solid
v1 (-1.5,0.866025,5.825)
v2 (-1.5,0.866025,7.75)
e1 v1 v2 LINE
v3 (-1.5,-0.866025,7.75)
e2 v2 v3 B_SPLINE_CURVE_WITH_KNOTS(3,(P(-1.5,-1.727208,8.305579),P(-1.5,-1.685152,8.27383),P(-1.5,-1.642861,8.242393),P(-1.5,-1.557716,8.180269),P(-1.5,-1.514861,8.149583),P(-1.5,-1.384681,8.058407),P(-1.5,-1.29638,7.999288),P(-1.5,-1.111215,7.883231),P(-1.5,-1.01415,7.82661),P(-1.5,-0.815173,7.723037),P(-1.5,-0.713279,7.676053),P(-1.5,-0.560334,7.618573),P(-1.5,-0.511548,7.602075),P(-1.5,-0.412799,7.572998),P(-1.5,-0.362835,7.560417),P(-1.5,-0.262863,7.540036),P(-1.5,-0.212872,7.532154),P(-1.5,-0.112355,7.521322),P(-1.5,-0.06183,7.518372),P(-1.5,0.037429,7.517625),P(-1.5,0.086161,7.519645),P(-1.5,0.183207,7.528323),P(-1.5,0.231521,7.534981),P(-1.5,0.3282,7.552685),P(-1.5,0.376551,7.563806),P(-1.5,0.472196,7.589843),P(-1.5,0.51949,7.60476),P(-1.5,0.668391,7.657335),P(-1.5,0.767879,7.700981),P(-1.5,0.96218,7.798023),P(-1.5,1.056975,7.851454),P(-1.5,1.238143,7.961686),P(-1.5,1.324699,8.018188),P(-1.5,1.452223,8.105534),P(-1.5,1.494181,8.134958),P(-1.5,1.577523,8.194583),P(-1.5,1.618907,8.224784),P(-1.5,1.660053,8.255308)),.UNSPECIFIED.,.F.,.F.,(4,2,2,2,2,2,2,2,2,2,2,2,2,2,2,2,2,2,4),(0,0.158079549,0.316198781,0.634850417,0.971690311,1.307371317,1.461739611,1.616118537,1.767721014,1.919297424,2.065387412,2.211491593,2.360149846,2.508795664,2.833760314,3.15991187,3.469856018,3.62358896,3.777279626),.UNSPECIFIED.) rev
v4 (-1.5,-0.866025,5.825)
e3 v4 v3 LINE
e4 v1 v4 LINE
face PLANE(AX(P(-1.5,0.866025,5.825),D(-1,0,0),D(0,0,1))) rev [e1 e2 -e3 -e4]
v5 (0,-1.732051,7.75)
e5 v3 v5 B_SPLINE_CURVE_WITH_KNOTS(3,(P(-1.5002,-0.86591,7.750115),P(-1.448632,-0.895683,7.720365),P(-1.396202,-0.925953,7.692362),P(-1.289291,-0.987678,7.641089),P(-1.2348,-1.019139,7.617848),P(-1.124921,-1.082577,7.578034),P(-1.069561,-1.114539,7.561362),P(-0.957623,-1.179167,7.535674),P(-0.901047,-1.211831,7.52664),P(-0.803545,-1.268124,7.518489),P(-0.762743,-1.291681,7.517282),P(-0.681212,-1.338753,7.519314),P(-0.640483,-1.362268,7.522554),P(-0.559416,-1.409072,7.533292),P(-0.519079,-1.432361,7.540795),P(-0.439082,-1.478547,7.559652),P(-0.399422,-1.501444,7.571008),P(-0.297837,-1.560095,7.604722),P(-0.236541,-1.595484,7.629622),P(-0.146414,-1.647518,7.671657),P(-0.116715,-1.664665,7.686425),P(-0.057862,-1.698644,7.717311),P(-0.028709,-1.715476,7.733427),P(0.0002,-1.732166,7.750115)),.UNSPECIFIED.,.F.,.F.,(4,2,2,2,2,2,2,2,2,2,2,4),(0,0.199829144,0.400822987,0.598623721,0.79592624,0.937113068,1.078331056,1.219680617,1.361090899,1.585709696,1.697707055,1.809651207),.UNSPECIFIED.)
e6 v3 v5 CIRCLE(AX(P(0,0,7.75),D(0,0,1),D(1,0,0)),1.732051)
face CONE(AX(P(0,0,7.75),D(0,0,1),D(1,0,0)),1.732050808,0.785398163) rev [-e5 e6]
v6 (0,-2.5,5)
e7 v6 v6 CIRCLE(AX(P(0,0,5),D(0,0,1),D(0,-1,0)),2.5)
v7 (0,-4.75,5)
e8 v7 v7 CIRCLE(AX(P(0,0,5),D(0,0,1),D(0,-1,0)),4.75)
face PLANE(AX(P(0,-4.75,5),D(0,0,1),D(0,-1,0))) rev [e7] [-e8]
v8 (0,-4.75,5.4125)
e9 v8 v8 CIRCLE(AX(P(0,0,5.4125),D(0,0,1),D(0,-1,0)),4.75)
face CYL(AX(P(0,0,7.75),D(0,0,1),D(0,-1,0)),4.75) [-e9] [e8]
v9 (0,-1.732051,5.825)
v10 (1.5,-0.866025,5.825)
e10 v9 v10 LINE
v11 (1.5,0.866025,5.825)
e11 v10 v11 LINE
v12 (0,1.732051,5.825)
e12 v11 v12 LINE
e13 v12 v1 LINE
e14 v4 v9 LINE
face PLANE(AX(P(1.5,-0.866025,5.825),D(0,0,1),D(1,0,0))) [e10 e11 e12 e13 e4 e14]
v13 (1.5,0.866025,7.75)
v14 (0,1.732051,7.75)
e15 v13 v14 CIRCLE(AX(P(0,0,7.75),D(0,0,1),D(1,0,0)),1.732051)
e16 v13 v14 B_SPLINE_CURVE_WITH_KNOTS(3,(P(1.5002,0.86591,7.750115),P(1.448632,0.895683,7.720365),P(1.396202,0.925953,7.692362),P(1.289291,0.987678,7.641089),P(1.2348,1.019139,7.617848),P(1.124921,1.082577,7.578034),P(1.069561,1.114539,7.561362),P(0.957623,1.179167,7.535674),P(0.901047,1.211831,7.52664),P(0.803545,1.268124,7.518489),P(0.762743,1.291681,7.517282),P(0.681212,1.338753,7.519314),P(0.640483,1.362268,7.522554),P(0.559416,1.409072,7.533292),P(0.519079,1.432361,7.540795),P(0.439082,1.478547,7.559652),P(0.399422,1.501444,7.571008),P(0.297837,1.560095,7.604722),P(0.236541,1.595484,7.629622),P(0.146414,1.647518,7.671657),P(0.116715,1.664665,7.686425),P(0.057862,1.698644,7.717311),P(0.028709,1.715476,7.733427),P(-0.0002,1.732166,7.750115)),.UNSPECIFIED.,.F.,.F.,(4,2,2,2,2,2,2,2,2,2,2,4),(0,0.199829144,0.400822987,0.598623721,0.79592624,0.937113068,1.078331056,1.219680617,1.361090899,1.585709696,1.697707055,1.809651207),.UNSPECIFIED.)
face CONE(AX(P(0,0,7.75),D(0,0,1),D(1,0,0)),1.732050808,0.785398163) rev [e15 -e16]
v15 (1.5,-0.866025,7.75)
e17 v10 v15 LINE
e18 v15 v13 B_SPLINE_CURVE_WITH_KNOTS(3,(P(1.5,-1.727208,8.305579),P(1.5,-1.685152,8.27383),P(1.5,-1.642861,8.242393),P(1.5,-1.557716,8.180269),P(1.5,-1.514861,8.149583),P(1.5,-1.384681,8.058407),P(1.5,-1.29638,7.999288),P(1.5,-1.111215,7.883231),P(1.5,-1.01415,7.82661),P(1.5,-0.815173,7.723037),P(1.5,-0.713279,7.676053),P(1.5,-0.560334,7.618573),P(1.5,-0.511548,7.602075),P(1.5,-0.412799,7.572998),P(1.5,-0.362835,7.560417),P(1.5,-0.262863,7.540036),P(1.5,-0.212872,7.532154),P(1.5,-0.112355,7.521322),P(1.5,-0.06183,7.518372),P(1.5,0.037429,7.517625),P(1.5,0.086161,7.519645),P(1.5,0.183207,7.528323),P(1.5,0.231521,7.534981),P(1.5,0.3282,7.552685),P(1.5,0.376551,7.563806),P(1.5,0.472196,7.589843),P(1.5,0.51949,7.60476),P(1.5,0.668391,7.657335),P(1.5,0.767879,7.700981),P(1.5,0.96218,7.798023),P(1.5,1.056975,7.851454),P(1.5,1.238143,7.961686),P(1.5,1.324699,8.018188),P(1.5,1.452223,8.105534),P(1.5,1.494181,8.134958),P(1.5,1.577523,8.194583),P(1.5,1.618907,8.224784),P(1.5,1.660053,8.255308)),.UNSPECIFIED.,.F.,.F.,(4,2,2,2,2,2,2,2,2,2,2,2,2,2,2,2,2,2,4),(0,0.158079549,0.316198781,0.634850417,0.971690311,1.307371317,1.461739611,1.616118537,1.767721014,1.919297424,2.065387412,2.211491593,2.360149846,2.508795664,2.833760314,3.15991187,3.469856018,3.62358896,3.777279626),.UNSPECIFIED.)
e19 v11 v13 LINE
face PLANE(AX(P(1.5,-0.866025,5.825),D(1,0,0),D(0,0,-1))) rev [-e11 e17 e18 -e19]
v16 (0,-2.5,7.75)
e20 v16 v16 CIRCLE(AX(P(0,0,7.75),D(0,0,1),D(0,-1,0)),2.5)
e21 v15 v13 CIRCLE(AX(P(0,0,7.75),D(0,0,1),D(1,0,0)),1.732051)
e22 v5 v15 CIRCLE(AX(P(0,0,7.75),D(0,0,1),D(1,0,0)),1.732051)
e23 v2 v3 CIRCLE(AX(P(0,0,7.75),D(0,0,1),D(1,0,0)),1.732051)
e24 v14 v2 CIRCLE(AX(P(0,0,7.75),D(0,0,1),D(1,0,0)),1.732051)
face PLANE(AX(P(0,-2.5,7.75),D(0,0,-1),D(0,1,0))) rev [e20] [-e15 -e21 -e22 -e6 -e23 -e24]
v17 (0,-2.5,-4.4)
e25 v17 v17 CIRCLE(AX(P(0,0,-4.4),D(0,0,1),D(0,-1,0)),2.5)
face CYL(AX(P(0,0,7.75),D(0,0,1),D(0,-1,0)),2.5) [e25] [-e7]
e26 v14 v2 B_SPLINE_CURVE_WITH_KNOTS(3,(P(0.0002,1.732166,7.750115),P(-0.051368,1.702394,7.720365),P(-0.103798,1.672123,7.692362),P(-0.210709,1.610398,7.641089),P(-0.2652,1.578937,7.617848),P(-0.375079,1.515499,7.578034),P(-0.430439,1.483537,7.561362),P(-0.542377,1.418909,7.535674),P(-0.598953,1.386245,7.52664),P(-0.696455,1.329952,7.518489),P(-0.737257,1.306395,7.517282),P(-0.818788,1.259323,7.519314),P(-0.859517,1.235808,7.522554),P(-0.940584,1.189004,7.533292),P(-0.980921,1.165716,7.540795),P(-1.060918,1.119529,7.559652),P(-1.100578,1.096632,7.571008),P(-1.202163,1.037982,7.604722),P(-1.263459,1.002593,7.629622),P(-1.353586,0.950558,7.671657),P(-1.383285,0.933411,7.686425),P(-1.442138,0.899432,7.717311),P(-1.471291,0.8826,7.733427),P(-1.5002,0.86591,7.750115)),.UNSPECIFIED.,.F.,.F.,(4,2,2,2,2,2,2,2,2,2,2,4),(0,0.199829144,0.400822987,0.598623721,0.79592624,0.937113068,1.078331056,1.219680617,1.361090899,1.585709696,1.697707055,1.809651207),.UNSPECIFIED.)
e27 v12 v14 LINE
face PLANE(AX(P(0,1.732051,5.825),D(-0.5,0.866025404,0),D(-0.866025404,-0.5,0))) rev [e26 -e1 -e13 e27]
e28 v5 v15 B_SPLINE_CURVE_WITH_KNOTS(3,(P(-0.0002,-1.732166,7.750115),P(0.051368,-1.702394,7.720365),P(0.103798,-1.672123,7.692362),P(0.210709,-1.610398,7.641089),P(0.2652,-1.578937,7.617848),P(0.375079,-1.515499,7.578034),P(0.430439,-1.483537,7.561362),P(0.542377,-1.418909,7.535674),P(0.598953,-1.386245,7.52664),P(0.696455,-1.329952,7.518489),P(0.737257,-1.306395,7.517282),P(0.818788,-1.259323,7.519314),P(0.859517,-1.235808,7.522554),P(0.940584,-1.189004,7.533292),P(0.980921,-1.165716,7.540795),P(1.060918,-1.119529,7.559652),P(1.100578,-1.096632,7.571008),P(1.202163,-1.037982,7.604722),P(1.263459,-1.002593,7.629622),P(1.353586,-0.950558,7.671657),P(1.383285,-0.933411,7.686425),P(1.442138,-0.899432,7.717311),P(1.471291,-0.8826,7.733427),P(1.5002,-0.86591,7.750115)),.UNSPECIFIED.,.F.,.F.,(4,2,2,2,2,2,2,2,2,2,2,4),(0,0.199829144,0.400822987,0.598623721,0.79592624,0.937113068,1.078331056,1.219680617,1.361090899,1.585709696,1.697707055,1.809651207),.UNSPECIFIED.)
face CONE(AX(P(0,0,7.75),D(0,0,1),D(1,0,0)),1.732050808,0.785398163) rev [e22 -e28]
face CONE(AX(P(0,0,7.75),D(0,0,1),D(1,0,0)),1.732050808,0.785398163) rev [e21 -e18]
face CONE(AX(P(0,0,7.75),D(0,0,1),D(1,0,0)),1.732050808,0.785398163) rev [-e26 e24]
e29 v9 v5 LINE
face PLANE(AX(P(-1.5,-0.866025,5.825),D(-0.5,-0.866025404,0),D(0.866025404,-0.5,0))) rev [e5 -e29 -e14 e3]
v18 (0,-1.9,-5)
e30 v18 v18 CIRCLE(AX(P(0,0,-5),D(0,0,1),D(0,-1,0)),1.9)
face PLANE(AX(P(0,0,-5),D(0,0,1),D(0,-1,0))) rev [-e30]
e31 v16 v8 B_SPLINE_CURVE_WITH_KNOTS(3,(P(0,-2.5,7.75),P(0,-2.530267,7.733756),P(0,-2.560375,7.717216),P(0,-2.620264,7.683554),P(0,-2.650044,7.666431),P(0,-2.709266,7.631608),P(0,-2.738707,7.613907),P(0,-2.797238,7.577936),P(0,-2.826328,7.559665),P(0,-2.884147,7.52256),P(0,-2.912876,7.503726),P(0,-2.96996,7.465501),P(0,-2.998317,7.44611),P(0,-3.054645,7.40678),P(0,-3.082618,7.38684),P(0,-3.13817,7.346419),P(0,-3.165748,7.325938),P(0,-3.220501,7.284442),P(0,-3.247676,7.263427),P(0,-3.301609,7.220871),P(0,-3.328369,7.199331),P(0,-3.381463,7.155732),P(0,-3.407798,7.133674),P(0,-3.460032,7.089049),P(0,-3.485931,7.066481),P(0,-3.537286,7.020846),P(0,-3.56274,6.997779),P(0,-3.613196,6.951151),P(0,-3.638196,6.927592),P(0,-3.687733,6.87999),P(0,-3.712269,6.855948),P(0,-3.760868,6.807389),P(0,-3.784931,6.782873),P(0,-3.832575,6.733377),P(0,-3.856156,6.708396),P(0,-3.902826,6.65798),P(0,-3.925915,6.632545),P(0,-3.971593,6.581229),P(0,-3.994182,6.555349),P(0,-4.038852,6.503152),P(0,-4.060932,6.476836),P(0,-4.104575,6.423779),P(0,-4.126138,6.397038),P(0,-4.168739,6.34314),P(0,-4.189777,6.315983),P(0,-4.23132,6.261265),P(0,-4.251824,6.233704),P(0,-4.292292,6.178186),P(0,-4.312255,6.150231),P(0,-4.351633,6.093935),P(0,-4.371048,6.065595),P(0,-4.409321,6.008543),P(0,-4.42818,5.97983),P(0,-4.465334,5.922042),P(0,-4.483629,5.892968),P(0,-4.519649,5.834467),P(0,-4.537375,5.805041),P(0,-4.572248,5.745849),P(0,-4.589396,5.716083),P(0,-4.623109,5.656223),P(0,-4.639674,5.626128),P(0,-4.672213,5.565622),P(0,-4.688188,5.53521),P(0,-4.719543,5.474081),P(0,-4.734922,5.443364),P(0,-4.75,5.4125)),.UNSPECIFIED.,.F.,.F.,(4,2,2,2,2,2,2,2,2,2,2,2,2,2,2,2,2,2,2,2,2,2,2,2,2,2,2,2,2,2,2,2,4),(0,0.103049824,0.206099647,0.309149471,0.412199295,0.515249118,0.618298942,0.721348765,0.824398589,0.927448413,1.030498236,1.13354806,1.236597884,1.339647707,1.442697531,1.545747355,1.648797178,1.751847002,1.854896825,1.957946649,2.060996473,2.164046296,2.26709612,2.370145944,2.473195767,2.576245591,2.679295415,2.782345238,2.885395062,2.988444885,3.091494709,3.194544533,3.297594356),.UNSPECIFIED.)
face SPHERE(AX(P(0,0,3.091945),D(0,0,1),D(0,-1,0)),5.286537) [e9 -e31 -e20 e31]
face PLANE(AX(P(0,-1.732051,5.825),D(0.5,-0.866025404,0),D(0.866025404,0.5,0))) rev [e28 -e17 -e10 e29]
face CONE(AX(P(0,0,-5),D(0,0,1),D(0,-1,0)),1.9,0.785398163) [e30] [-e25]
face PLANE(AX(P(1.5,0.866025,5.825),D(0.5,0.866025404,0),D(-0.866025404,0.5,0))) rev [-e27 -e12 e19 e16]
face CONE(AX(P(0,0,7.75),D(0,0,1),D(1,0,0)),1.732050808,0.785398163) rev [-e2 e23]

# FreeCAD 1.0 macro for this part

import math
import FreeCAD as App
import Part
import Sketcher
from FreeCAD import Vector
Q = App.Units.Quantity

doc = App.newDocument("Part")
body = doc.addObject("PartDesign::Body", "Body")

# Sketch on YZ plane
sketch1 = body.newObject("Sketcher::SketchObject", "Sketch")
sketch1.AttachmentSupport = (doc.getObject("YZ_Plane"), [""])
sketch1.MapMode = "FlatFace"
sketch1.addGeometry([
    Part.LineSegment(Vector(1.9, -5, 0), Vector(2.5, -4.4, 0)),  # 0
    Part.LineSegment(Vector(2.5, -4.4, 0), Vector(2.5, 5, 0)),  # 1
    Part.LineSegment(Vector(2.5, 5, 0), Vector(0, 5, 0)),  # 2
    Part.LineSegment(Vector(0, 5, 0), Vector(0, -5, 0)),  # 3
    Part.LineSegment(Vector(0, -5, 0), Vector(1.9, -5, 0)),  # 4
], False)
sketch1.addConstraint([
    Sketcher.Constraint("Coincident", 0, 2, 1, 1),
    Sketcher.Constraint("Coincident", 1, 2, 2, 1),
    Sketcher.Constraint("Coincident", 2, 2, 3, 1),
    Sketcher.Constraint("Coincident", 3, 2, 4, 1),
    Sketcher.Constraint("Coincident", 4, 2, 0, 1),
    Sketcher.Constraint("Vertical", 1),
    Sketcher.Constraint("Horizontal", 2),
    Sketcher.Constraint("Vertical", 3),
    Sketcher.Constraint("Horizontal", 4),
    Sketcher.Constraint("Symmetric", 2, 2, 3, 2, -1, 1),
    Sketcher.Constraint("DistanceY", 3, 2, 3, 1, Q("10 mm")),
    Sketcher.Constraint("Angle", 0, Q("45 deg")),
    Sketcher.Constraint("DistanceX", 2, 2, 2, 1, Q("2.5 mm")),
    Sketcher.Constraint("DistanceX", 4, 1, 4, 2, Q("1.9 mm")),
])
revolution = body.newObject("PartDesign::Revolution", "Revolution")
revolution.Profile = sketch1
revolution.ReferenceAxis = (sketch1, ["V_Axis"])
revolution.Angle = 360

# Sketch on YZ plane
sketch2 = body.newObject("Sketcher::SketchObject", "Sketch001")
sketch2.AttachmentSupport = (doc.getObject("YZ_Plane"), [""])
sketch2.MapMode = "FlatFace"
sketch2.addGeometry([
    Part.LineSegment(Vector(4.75, 5, 0), Vector(4.75, 5.4125, 0)),  # 0
    Part.ArcOfCircle(Part.Circle(Vector(0, 3.091945, 0), Vector(0, 0, 1), 5.286537), math.radians(26.03726), math.radians(61.777335)),  # 1
    Part.LineSegment(Vector(2.5, 7.75, 0), Vector(0, 7.75, 0)),  # 2
    Part.LineSegment(Vector(0, 7.75, 0), Vector(0, 5, 0)),  # 3
    Part.LineSegment(Vector(0, 5, 0), Vector(4.75, 5, 0)),  # 4
], False)
sketch2.addConstraint([
    Sketcher.Constraint("Coincident", 0, 2, 1, 1),
    Sketcher.Constraint("Coincident", 1, 2, 2, 1),
    Sketcher.Constraint("Coincident", 2, 2, 3, 1),
    Sketcher.Constraint("Coincident", 3, 2, 4, 1),
    Sketcher.Constraint("Coincident", 4, 2, 0, 1),
    Sketcher.Constraint("Vertical", 0),
    Sketcher.Constraint("Horizontal", 2),
    Sketcher.Constraint("Vertical", 3),
    Sketcher.Constraint("Horizontal", 4),
    Sketcher.Constraint("PointOnObject", 1, 3, -2),
    Sketcher.Constraint("PointOnObject", 2, 2, -2),
    Sketcher.Constraint("DistanceX", 2, 2, 2, 1, Q("2.5 mm")),
    Sketcher.Constraint("DistanceY", -1, 1, 3, 2, Q("5 mm")),
    Sketcher.Constraint("DistanceX", 4, 1, 4, 2, Q("4.75 mm")),
    Sketcher.Constraint("DistanceY", 3, 2, 3, 1, Q("2.75 mm")),
    Sketcher.Constraint("DistanceY", 0, 1, 0, 2, Q("0.4125 mm")),
])
revolution2 = body.newObject("PartDesign::Revolution", "Revolution001")
revolution2.Profile = sketch2
revolution2.ReferenceAxis = (sketch2, ["V_Axis"])
revolution2.Angle = 360

# Sketch on XY plane
sketch3 = body.newObject("Sketcher::SketchObject", "Sketch002")
sketch3.AttachmentSupport = (doc.getObject("XY_Plane"), [""])
sketch3.MapMode = "FlatFace"
sketch3.AttachmentOffset = App.Placement(Vector(0, 0, 7.75), App.Rotation())
sketch3.addGeometry([
    Part.LineSegment(Vector(1.5, -0.866025, 0), Vector(1.5, 0.866025, 0)),  # 0
    Part.LineSegment(Vector(1.5, 0.866025, 0), Vector(0, 1.732051, 0)),  # 1
    Part.LineSegment(Vector(0, 1.732051, 0), Vector(-1.5, 0.866025, 0)),  # 2
    Part.LineSegment(Vector(-1.5, 0.866025, 0), Vector(-1.5, -0.866025, 0)),  # 3
    Part.LineSegment(Vector(-1.5, -0.866025, 0), Vector(0, -1.732051, 0)),  # 4
    Part.LineSegment(Vector(0, -1.732051, 0), Vector(1.5, -0.866025, 0)),  # 5
], False)
sketch3.addConstraint([
    Sketcher.Constraint("Coincident", 0, 2, 1, 1),
    Sketcher.Constraint("Coincident", 1, 2, 2, 1),
    Sketcher.Constraint("Coincident", 2, 2, 3, 1),
    Sketcher.Constraint("Coincident", 3, 2, 4, 1),
    Sketcher.Constraint("Coincident", 4, 2, 5, 1),
    Sketcher.Constraint("Coincident", 5, 2, 0, 1),
    Sketcher.Constraint("Vertical", 0),
    Sketcher.Constraint("Vertical", 3),
    Sketcher.Constraint("Symmetric", 0, 2, 3, 2, -1, 1),
    Sketcher.Constraint("Symmetric", 1, 2, 4, 2, -1, 1),
    Sketcher.Constraint("PointOnObject", 1, 2, -2),
    Sketcher.Constraint("Parallel", 2, 5),
    Sketcher.Constraint("Horizontal", 0, 2, 2, 2),
    Sketcher.Constraint("Angle", 1, Q("150 deg")),
    Sketcher.Constraint("DistanceX", 2, 2, 0, 2, Q("3 mm")),
    Sketcher.Constraint("DistanceY", 0, 1, 0, 2, Q("1.732051 mm")),
])
pocket1 = body.newObject("PartDesign::Pocket", "Pocket")
pocket1.Profile = sketch3
pocket1.Length = 1.925

# Sketch on YZ plane
sketch4 = body.newObject("Sketcher::SketchObject", "Sketch003")
sketch4.AttachmentSupport = (doc.getObject("YZ_Plane"), [""])
sketch4.MapMode = "FlatFace"
sketch4.addGeometry([
    Part.LineSegment(Vector(0, 7.75, 0), Vector(-1.732051, 7.75, 0)),
    Part.LineSegment(Vector(-1.732051, 7.75, 0), Vector(0, 6.017949, 0)),
    Part.LineSegment(Vector(0, 6.017949, 0), Vector(0, 7.75, 0)),
], False)
sketch4.addConstraint([
    Sketcher.Constraint("Coincident", 0, 2, 1, 1),
    Sketcher.Constraint("Coincident", 1, 2, 2, 1),
    Sketcher.Constraint("Coincident", 2, 2, 0, 1),
    Sketcher.Constraint("Horizontal", 0),
    Sketcher.Constraint("Vertical", 2),
    Sketcher.Constraint("PointOnObject", 1, 2, -2),
    Sketcher.Constraint("Equal", 0, 2),
    Sketcher.Constraint("DistanceY", -1, 1, 0, 2, Q("7.75 mm")),
    Sketcher.Constraint("DistanceX", 0, 2, 0, 1, Q("1.732051 mm")),
])
groove = body.newObject("PartDesign::Groove", "Groove")
groove.Profile = sketch4
groove.ReferenceAxis = (sketch4, ["V_Axis"])
groove.Angle = 360

doc.recompute()
